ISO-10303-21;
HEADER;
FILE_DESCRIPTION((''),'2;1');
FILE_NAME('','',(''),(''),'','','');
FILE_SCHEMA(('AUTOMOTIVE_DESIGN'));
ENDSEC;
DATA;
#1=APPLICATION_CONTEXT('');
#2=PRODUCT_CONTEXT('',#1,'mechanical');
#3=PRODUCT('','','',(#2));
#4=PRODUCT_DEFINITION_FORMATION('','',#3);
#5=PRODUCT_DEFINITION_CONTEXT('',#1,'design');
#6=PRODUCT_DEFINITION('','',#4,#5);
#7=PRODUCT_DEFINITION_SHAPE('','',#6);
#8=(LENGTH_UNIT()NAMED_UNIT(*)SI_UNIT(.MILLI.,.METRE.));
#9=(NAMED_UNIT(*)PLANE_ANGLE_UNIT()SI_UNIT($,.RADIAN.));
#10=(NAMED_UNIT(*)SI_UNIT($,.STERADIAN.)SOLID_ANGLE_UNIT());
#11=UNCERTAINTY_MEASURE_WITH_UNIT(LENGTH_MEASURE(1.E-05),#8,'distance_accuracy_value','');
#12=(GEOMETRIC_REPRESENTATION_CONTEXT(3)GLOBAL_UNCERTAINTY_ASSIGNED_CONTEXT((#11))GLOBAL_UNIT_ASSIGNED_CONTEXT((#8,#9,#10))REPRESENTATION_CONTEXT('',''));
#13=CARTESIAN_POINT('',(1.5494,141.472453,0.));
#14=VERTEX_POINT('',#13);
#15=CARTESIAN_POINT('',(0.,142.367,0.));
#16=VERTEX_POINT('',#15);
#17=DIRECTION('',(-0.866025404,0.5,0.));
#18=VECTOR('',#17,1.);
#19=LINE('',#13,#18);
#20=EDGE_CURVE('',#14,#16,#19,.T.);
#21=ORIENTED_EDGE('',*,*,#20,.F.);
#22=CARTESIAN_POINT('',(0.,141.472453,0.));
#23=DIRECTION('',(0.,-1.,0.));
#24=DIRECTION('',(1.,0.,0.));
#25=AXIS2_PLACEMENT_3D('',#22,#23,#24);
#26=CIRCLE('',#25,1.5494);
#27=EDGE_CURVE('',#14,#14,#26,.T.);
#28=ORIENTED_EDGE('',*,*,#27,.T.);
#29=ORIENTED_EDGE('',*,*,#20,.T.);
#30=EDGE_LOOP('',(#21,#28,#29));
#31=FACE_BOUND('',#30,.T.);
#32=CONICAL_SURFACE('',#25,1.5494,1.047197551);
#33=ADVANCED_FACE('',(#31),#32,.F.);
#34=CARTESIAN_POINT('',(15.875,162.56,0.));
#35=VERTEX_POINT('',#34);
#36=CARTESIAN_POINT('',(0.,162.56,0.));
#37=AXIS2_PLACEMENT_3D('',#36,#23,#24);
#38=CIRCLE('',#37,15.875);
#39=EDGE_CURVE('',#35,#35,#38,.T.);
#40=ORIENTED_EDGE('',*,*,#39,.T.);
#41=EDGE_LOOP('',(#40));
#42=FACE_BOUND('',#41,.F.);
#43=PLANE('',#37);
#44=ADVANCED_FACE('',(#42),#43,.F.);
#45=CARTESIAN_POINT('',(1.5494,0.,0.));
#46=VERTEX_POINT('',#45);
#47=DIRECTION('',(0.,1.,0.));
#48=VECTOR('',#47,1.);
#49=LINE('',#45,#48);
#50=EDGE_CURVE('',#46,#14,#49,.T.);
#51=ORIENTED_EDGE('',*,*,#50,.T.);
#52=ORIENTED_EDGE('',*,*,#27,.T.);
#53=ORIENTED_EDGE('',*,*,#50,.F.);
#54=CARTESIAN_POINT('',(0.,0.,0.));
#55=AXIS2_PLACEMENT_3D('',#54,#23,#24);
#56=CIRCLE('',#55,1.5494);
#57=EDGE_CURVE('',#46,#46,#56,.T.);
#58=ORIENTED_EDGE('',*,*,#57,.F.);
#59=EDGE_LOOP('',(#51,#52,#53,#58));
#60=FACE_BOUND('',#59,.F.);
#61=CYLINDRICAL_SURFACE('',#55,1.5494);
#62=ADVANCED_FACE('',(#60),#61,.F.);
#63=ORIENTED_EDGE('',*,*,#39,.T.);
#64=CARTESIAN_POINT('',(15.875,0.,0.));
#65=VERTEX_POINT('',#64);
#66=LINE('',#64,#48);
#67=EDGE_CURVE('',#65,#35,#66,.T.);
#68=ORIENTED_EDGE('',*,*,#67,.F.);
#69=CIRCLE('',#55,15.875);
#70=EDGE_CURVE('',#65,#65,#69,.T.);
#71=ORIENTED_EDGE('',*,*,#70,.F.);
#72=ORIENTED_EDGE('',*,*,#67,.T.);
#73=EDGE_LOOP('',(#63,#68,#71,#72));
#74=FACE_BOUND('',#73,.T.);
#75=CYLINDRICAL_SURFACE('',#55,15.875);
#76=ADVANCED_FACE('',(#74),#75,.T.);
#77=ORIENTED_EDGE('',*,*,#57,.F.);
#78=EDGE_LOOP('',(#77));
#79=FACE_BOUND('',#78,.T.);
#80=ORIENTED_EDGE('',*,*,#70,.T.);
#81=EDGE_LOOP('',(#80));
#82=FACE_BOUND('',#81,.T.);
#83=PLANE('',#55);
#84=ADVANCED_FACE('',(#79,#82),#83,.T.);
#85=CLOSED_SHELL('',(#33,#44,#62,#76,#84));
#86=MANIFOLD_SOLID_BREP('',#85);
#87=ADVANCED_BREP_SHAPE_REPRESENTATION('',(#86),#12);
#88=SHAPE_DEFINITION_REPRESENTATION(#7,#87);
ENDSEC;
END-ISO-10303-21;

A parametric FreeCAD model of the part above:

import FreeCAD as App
import Part
import Sketcher
Q = App.Units.Quantity


def edges_at(feature, points):
    """Names of the edges that pass closest to the given points."""
    edges = feature.Shape.Edges
    near = lambda p: min(range(len(edges)), key=lambda i: edges[i].distToShape(Part.Vertex(*p))[0])
    return sorted({f"Edge{near(p) + 1}" for p in points})

doc = App.newDocument("Part")
body = doc.addObject("PartDesign::Body", "Body")

# Sketch on XZ plane
sketch1 = body.newObject("Sketcher::SketchObject", "Sketch")
sketch1.AttachmentSupport = (doc.getObject("XZ_Plane"), [""])
sketch1.MapMode = "FlatFace"
sketch1.addGeometry(Part.Circle(App.Vector(0, 0, 0), App.Vector(0, 0, 1), 15.875), False)
sketch1.addConstraint([
    Sketcher.Constraint("Coincident", 0, 3, -1, 1),
    Sketcher.Constraint("Diameter", 0, Q("1.25 in")),
])
pad1 = body.newObject("PartDesign::Pad", "Pad")
pad1.Profile = sketch1
pad1.Length = Q("6.4 in")
pad1.Reversed = True

# Sketch on XZ plane
sketch2 = body.newObject("Sketcher::SketchObject", "Sketch001")
sketch2.AttachmentSupport = (doc.getObject("XZ_Plane"), [""])
sketch2.MapMode = "FlatFace"
sketch2.addGeometry(Part.Circle(App.Vector(0, 0, 0), App.Vector(0, 0, 1), 1.5494), False)
sketch2.addConstraint([
    Sketcher.Constraint("Coincident", 0, 3, -1, 1),
    Sketcher.Constraint("Diameter", 0, Q("0.122 in")),
])
pocket1 = body.newObject("PartDesign::Pocket", "Pocket")
pocket1.Profile = sketch2
pocket1.Length = Q("5.605 in")
doc.recompute()

chamfer = body.newObject("PartDesign::Chamfer", "Chamfer")
chamfer.Base = (pocket1, edges_at(pocket1, [(-1.549, 142.367, 0)]))
chamfer.ChamferType = "Two distances"
chamfer.Size = 0.894547
chamfer.Size2 = Q("0.061 in")

doc.recompute()
